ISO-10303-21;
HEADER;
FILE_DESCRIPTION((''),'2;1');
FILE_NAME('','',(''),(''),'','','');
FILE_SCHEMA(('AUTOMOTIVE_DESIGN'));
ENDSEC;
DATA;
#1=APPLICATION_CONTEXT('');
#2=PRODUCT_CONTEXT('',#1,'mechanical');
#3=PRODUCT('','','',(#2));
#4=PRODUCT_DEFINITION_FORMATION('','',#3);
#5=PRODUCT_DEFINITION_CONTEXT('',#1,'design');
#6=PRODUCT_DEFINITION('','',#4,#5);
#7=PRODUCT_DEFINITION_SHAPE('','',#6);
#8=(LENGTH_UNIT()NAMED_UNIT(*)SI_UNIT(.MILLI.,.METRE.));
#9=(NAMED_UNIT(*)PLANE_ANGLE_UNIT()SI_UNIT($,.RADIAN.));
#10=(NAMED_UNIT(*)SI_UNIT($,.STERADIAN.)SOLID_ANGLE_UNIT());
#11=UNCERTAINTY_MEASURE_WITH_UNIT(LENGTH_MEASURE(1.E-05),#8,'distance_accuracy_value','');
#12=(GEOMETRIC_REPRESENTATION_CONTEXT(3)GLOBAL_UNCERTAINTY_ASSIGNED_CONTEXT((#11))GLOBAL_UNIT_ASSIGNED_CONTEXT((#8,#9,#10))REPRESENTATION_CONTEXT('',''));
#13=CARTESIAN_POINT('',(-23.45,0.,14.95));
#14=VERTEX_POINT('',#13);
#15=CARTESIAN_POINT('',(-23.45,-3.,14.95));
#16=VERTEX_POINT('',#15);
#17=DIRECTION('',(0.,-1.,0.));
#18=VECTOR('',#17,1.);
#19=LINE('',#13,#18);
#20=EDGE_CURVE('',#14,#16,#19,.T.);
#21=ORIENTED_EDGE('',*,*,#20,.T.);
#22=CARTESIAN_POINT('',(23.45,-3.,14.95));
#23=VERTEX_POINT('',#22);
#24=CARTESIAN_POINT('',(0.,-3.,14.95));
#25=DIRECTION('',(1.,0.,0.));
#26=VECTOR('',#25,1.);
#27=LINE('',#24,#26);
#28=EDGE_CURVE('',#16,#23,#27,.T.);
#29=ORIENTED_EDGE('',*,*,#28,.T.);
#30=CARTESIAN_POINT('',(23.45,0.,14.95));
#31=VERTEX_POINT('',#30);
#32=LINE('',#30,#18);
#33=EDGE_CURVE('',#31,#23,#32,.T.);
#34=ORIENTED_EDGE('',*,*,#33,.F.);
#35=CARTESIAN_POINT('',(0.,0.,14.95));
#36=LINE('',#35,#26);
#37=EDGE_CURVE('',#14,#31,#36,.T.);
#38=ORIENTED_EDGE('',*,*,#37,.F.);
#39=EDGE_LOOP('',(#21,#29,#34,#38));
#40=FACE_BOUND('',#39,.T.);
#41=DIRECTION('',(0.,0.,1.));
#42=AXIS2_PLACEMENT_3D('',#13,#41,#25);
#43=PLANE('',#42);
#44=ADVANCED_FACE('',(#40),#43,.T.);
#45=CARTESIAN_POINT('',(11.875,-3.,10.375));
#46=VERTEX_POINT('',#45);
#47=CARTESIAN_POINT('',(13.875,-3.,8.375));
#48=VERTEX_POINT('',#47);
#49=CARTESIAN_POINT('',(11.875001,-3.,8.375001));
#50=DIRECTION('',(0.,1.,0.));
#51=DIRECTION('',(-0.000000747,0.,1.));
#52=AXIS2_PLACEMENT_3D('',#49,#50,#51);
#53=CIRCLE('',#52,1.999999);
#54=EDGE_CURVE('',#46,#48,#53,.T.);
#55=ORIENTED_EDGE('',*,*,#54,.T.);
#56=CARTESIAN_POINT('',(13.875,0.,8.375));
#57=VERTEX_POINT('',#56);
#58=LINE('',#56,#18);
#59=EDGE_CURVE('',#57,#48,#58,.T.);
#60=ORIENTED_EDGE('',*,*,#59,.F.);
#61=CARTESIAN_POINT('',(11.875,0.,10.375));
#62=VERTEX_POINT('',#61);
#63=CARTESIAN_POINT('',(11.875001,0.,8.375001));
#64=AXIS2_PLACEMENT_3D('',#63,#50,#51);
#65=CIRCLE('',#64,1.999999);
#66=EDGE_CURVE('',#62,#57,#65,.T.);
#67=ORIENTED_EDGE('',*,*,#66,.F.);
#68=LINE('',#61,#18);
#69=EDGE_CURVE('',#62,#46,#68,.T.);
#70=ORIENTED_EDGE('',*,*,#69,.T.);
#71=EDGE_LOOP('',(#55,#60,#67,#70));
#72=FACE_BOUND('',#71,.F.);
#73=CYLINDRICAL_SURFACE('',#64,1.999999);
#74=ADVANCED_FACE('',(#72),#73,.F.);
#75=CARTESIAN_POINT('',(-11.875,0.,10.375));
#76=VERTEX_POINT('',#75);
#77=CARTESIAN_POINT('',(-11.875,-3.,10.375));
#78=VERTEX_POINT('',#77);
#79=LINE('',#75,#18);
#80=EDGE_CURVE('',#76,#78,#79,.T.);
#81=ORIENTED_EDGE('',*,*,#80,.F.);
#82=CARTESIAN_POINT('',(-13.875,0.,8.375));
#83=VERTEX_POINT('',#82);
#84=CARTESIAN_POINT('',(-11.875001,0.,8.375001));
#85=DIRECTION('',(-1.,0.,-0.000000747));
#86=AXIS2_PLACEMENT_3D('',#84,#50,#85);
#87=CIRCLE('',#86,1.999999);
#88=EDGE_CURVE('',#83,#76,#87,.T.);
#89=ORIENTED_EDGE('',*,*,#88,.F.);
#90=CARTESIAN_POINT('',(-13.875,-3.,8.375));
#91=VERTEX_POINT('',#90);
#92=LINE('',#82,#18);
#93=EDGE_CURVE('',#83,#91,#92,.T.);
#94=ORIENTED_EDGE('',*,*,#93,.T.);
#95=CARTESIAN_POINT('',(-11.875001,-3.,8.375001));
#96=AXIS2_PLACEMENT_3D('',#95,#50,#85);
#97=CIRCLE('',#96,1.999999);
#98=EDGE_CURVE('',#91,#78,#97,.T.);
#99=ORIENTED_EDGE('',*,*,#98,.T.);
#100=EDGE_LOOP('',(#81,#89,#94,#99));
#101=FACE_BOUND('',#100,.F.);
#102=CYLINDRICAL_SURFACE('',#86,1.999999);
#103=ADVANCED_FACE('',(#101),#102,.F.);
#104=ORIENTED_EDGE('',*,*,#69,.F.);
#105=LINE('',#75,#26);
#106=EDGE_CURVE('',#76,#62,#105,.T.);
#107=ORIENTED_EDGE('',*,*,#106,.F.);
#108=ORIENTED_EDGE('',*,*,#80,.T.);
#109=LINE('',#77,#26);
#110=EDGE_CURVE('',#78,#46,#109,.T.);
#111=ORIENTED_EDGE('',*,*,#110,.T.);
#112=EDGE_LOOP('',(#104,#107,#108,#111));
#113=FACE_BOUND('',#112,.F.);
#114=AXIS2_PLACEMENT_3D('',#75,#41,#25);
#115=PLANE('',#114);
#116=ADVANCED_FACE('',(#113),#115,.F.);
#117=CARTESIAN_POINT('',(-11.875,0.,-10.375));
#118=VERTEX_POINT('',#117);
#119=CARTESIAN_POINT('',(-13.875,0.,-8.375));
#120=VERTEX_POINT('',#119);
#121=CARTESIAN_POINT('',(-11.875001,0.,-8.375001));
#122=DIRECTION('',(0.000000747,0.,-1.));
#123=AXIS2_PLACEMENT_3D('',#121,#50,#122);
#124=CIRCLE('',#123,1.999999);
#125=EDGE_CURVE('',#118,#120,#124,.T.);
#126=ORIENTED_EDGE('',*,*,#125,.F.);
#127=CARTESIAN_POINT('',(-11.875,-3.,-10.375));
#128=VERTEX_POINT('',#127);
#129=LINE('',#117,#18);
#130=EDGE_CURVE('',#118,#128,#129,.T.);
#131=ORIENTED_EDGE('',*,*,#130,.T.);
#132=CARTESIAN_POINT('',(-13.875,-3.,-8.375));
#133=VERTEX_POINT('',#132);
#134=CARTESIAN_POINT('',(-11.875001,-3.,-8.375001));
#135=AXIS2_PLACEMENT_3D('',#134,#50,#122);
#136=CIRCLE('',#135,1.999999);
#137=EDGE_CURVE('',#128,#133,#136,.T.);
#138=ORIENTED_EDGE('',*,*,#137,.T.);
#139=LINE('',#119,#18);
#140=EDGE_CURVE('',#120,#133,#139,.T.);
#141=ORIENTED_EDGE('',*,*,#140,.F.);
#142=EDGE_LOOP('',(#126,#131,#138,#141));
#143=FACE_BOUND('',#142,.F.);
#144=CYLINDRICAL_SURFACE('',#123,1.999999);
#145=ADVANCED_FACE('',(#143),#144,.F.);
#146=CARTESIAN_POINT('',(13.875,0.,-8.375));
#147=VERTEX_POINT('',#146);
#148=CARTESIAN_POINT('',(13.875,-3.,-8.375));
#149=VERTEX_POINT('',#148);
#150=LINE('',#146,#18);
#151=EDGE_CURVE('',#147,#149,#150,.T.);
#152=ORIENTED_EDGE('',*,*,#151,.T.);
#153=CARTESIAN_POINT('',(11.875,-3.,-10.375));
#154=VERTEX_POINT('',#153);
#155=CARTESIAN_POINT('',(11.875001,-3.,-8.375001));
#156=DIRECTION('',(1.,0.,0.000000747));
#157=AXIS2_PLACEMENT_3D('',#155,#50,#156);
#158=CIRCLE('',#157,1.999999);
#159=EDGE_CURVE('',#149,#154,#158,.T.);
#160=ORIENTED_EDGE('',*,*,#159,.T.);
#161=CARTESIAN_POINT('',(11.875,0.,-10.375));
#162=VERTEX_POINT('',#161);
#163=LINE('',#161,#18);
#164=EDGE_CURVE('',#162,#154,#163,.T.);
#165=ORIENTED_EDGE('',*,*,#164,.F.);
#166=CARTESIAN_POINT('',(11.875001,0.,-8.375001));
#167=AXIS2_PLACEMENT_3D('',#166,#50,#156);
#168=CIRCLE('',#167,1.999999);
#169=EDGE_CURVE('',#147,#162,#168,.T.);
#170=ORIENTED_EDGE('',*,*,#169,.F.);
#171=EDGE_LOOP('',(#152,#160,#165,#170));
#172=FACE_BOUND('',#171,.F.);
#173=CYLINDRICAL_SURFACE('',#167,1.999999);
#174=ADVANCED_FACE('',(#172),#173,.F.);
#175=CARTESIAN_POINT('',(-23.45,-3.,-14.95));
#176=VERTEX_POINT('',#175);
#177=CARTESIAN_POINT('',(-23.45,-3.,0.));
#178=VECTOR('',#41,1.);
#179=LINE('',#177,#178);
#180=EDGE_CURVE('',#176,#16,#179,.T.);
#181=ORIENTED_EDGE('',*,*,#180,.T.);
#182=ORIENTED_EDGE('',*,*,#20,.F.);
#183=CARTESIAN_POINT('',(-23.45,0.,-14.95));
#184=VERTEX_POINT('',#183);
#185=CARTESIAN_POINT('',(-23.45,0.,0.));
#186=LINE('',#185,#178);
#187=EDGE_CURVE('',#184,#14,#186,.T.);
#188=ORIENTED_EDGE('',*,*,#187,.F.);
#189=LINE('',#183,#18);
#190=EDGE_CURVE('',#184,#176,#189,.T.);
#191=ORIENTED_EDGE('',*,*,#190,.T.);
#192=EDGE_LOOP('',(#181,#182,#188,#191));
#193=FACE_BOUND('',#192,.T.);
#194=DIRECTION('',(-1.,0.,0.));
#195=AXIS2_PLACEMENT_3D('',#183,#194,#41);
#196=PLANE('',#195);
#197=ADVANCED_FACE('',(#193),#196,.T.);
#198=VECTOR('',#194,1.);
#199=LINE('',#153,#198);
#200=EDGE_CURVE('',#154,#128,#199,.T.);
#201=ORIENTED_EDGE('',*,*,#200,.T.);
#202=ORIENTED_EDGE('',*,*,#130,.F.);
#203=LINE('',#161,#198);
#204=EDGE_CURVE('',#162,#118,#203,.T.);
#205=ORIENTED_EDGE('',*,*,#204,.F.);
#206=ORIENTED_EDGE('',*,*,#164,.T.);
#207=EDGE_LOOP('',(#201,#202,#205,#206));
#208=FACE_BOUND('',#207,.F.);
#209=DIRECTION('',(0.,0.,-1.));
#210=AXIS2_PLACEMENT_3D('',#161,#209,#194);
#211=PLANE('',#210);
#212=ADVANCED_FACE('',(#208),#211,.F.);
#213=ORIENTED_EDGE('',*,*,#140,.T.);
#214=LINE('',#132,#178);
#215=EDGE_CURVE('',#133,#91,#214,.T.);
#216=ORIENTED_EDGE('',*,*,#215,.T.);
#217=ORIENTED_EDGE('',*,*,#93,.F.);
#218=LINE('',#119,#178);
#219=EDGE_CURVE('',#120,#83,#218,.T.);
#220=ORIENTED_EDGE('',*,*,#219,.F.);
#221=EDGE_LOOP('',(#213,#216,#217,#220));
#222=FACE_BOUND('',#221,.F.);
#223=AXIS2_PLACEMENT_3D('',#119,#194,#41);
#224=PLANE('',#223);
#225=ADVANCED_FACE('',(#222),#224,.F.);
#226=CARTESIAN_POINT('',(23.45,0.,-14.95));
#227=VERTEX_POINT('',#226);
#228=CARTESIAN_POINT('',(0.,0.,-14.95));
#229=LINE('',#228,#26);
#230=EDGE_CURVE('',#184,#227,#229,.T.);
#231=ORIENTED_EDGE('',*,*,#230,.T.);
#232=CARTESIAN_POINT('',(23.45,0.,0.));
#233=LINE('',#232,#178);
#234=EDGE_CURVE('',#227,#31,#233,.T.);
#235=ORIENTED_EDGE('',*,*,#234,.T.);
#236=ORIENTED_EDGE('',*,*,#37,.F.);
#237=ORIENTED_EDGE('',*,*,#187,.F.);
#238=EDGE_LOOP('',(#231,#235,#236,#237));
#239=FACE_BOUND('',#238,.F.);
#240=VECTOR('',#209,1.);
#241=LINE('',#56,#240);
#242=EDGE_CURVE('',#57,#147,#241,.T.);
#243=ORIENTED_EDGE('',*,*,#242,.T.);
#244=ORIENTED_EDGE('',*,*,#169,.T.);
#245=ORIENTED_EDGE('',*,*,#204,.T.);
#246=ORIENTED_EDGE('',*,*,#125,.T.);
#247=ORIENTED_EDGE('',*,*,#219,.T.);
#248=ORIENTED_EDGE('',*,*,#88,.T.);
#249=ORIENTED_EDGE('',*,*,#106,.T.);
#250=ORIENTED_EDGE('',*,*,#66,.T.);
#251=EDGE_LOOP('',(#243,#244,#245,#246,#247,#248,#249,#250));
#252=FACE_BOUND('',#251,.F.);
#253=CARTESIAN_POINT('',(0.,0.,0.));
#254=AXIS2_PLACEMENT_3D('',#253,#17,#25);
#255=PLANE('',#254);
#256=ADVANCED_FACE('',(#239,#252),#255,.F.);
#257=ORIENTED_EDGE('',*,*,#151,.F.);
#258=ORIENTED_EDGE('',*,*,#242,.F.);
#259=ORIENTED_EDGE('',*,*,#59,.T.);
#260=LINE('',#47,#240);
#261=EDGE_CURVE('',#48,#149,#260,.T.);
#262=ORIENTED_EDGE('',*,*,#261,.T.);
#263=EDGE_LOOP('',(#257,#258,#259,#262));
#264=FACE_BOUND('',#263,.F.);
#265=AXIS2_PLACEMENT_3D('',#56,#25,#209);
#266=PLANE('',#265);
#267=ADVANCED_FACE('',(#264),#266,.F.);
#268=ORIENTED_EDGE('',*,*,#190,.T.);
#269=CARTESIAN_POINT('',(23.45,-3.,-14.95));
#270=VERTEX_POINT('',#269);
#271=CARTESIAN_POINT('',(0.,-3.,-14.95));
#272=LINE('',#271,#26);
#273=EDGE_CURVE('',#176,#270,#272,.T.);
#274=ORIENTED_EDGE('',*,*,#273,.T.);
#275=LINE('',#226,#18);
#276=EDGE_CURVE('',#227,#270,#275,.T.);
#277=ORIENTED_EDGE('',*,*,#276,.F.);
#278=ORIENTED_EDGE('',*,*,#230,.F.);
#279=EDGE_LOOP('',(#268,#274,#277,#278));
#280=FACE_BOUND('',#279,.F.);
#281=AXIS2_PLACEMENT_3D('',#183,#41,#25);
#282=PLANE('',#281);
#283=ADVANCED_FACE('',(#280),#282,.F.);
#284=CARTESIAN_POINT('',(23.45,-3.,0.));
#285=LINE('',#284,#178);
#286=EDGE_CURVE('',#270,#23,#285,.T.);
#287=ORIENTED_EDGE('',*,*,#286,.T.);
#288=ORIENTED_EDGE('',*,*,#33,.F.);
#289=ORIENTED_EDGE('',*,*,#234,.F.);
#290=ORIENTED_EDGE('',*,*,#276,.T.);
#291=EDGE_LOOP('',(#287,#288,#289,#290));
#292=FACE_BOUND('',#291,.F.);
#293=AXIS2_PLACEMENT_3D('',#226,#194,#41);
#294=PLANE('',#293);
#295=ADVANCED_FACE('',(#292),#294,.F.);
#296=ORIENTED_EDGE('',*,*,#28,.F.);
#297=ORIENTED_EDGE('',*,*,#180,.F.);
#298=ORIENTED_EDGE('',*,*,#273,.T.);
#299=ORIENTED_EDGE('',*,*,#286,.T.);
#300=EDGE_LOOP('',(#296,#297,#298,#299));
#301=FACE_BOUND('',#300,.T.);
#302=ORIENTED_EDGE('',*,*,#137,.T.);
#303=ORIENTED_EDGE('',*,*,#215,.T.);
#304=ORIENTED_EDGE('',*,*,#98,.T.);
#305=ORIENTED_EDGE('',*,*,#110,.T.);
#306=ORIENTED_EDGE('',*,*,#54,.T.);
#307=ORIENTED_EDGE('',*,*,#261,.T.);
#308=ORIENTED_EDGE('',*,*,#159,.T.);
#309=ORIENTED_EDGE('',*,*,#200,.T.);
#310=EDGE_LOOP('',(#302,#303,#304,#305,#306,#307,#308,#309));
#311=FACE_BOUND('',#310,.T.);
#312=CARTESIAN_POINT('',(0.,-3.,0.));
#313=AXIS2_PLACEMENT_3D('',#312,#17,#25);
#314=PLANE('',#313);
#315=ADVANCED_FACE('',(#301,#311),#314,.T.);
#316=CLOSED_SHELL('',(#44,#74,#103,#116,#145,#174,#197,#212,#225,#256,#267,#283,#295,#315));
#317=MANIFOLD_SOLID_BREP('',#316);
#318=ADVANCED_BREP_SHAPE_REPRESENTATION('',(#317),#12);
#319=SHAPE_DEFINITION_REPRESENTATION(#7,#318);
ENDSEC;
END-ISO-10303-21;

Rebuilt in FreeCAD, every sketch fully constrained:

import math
import FreeCAD as App
import Part
import Sketcher
from FreeCAD import Vector


def add_polygon(sketch, points):
    """Adds a closed chain of lines whose ends are joined by coincident constraints."""
    first, n = sketch.GeometryCount, len(points)
    for a, b in zip(points, points[1:] + points[:1]):
        sketch.addGeometry(Part.LineSegment(App.Vector(*a, 0), App.Vector(*b, 0)), False)
    for i in range(n):
        sketch.addConstraint(Sketcher.Constraint("Coincident", first + i, 2, first + (i + 1) % n, 1))

doc = App.newDocument("Part")
body = doc.addObject("PartDesign::Body", "Body")

# Sketch on XZ plane
sketch1 = body.newObject("Sketcher::SketchObject", "Sketch")
sketch1.AttachmentSupport = (doc.getObject("XZ_Plane"), [""])
sketch1.MapMode = "FlatFace"
add_polygon(sketch1, [(-23.45, 14.95), (-23.45, -14.95), (23.45, -14.95), (23.45, 14.95)])  # lines 0-3
sketch1.addGeometry(Part.ArcOfCircle(Part.Circle(Vector(11.875001, -8.375001, 0), Vector(0, 0, 1), 1.999999), math.radians(-90.000043), math.radians(0.000043)), False)  # 4
sketch1.addGeometry(Part.LineSegment(Vector(11.875, -10.375, 0), Vector(-11.875, -10.375, 0)), False)  # 5
sketch1.addGeometry(Part.ArcOfCircle(Part.Circle(Vector(-11.875001, -8.375001, 0), Vector(0, 0, 1), 1.999999), math.radians(179.999957), math.radians(270.000043)), False)  # 6
sketch1.addGeometry(Part.LineSegment(Vector(-13.875, -8.375, 0), Vector(-13.875, 8.375, 0)), False)  # 7
sketch1.addGeometry(Part.ArcOfCircle(Part.Circle(Vector(-11.875001, 8.375001, 0), Vector(0, 0, 1), 1.999999), math.radians(89.999957), math.radians(180.000043)), False)  # 8
sketch1.addGeometry(Part.LineSegment(Vector(-11.875, 10.375, 0), Vector(11.875, 10.375, 0)), False)  # 9
sketch1.addGeometry(Part.ArcOfCircle(Part.Circle(Vector(11.875001, 8.375001, 0), Vector(0, 0, 1), 1.999999), math.radians(-0.000043), math.radians(90.000043)), False)  # 10
sketch1.addGeometry(Part.LineSegment(Vector(13.875, 8.375, 0), Vector(13.875, -8.375, 0)), False)  # 11
sketch1.addConstraint([
    Sketcher.Constraint("Tangent", 4, 1, 5, 1),
    Sketcher.Constraint("Tangent", 5, 2, 6, 2),
    Sketcher.Constraint("Tangent", 6, 1, 7, 1),
    Sketcher.Constraint("Tangent", 7, 2, 8, 2),
    Sketcher.Constraint("Tangent", 8, 1, 9, 1),
    Sketcher.Constraint("Tangent", 9, 2, 10, 2),
    Sketcher.Constraint("Tangent", 10, 1, 11, 1),
    Sketcher.Constraint("Tangent", 11, 2, 4, 2),
    Sketcher.Constraint("Vertical", 0),
    Sketcher.Constraint("Horizontal", 1),
    Sketcher.Constraint("Vertical", 2),
    Sketcher.Constraint("Horizontal", 3),
    Sketcher.Constraint("Horizontal", 5),
    Sketcher.Constraint("Vertical", 7),
    Sketcher.Constraint("Horizontal", 9),
    Sketcher.Constraint("Vertical", 11),
    Sketcher.Constraint("Equal", 4, 6),
    Sketcher.Constraint("Equal", 6, 8),
    Sketcher.Constraint("Equal", 8, 10),
    Sketcher.Constraint("Symmetric", 4, 3, 8, 3, -1, 1),
    Sketcher.Constraint("Symmetric", 0, 2, 2, 2, -1, 1),
    Sketcher.Constraint("Radius", 4, 1.999999),
    Sketcher.Constraint("DistanceX", 1, 1, 1, 2, 46.9),
    Sketcher.Constraint("DistanceY", 0, 2, 0, 1, 29.9),
    Sketcher.Constraint("DistanceX", 5, 2, 5, 1, 23.75),
    Sketcher.Constraint("DistanceY", 7, 1, 7, 2, 16.75),
])
pad1 = body.newObject("PartDesign::Pad", "Pad")
pad1.Profile = sketch1
pad1.Length = 3

doc.recompute()
